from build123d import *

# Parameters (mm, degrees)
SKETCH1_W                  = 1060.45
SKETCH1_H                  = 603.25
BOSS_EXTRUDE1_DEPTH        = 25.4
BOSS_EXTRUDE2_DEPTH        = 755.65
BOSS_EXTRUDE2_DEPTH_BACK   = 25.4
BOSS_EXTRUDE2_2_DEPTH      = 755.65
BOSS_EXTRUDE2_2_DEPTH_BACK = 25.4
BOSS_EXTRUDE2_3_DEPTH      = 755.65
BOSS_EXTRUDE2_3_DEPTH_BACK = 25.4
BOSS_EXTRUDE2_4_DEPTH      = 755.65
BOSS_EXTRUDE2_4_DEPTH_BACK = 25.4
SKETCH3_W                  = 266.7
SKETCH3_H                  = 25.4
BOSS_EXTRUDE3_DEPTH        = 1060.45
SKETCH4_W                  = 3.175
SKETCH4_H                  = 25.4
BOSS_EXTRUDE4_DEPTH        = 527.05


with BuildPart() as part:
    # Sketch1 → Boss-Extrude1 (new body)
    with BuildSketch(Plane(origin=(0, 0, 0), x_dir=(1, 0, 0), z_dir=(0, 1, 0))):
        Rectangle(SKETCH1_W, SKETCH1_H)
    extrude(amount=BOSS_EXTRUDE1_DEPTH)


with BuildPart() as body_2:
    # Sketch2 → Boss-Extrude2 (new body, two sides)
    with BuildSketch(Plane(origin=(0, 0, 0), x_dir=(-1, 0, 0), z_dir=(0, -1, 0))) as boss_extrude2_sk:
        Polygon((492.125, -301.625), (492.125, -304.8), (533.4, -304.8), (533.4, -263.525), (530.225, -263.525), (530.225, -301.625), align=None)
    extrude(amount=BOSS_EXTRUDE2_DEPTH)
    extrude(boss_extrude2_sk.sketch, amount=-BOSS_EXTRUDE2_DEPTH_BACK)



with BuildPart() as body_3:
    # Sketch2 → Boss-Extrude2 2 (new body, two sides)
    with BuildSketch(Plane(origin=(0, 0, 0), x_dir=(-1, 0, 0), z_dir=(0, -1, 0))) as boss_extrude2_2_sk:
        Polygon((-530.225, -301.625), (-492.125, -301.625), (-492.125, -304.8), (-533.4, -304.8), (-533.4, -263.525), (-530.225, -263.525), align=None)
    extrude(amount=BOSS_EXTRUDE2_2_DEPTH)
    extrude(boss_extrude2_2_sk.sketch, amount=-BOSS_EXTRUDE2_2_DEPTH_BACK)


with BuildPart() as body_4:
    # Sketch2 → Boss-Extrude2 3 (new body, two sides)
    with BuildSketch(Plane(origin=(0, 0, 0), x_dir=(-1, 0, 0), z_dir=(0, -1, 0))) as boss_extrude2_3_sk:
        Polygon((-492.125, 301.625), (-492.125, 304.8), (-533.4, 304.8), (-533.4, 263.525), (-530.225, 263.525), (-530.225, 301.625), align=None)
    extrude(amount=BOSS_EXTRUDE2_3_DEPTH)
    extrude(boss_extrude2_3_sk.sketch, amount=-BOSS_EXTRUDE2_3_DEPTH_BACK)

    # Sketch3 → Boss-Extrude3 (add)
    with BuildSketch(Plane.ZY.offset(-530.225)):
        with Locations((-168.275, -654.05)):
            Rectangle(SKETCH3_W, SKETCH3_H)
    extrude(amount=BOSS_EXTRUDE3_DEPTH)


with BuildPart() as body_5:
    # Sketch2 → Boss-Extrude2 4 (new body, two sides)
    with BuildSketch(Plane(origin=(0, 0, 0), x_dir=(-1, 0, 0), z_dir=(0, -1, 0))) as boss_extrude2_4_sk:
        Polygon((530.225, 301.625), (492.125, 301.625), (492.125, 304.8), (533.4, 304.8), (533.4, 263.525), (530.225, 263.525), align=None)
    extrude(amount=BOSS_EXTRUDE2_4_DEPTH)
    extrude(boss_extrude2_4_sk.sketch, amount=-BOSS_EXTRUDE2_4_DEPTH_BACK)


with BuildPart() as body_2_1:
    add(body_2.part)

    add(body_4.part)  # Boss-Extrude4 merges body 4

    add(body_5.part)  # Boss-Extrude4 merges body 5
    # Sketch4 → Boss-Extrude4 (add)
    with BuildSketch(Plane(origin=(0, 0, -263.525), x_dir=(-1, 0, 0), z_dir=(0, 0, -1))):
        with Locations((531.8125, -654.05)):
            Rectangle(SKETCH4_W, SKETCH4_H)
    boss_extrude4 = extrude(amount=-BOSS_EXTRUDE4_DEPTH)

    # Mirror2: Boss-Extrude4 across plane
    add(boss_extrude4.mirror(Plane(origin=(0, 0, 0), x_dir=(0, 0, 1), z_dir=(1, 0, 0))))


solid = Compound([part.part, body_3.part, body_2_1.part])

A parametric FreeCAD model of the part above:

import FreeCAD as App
import Part
import Sketcher
Q = App.Units.Quantity

doc = App.newDocument("Part")
params = doc.addObject("Spreadsheet::Sheet", "Params")
for row, (alias, value) in enumerate([
    ("sketch1_width", "41.75 in"),
    ("sketch1_height", "23.75 in"),
    ("pad1_length", "1 in"),
    ("sketch2_width", "1.5 in"),
    ("sketch2_width2", "1.625 in"),
    ("pad2_length", "29.75 in"),
    ("pad2_length2", "1 in"),
    ("sketch3_width", "1.5 in"),
    ("sketch3_width2", "0.125 in"),
    ("pad3_length", "29.75 in"),
    ("pad3_length2", "1 in"),
    ("sketch4_width", "1.5 in"),
    ("sketch4_width2", "1.625 in"),
    ("pad4_length", "29.75 in"),
    ("pad4_length2", "1 in"),
    ("sketch5_width", "1 in"),
    ("sketch5_height", "10.5 in"),
    ("pad5_length", "41.75 in"),
    ("sketch6_width", "1.5 in"),
    ("sketch6_width2", "0.125 in"),
    ("pad6_length", "29.75 in"),
    ("pad6_length2", "1 in"),
    ("sketch7_height", "1 in"),
    ("sketch7_width", "0.125 in"),
    ("pad7_length", "20.75 in"),
], start=1):
    params.set(f"A{row}", alias)
    params.set(f"B{row}", "=" + value)
    params.setAlias(f"B{row}", alias)

body = doc.addObject("PartDesign::Body", "Body")

sketch1 = body.newObject("Sketcher::SketchObject", "Sketch")
sketch1.AttachmentSupport = (doc.getObject("XZ_Plane"), [""])
sketch1.MapMode = "FlatFace"
sketch1.addGeometry([
    Part.LineSegment(App.Vector(-530.225, -301.625, 0), App.Vector(-530.225, 301.625, 0)),
    Part.LineSegment(App.Vector(-530.225, 301.625, 0), App.Vector(530.225, 301.625, 0)),
    Part.LineSegment(App.Vector(530.225, 301.625, 0), App.Vector(530.225, -301.625, 0)),
    Part.LineSegment(App.Vector(530.225, -301.625, 0), App.Vector(-530.225, -301.625, 0)),
], False)
sketch1.addConstraint([
    Sketcher.Constraint("Coincident", 0, 2, 1, 1),
    Sketcher.Constraint("Coincident", 1, 2, 2, 1),
    Sketcher.Constraint("Coincident", 2, 2, 3, 1),
    Sketcher.Constraint("Coincident", 3, 2, 0, 1),
    Sketcher.Constraint("Vertical", 0),
    Sketcher.Constraint("Horizontal", 1),
    Sketcher.Constraint("Vertical", 2),
    Sketcher.Constraint("Horizontal", 3),
    Sketcher.Constraint("Symmetric", 0, 2, 2, 2, -1, 1),
    Sketcher.Constraint("DistanceX", 1, 1, 1, 2, Q("41.75 in")),
    Sketcher.Constraint("DistanceY", 0, 1, 0, 2, Q("23.75 in")),
])
sketch1.setExpression("Constraints[9]", "Params.sketch1_width")
sketch1.setExpression("Constraints[10]", "Params.sketch1_height")
pad1 = body.newObject("PartDesign::Pad", "Pad")
pad1.Profile = sketch1
pad1.setExpression("Length", "Params.pad1_length")
pad1.Reversed = True
body2 = doc.addObject("PartDesign::Body", "Body001")

sketch2 = body2.newObject("Sketcher::SketchObject", "Sketch001")
sketch2.AttachmentSupport = (doc.getObject("XZ_Plane001"), [""])
sketch2.MapMode = "FlatFace"
sketch2.addGeometry([
    Part.LineSegment(App.Vector(-492.125, 301.625, 0), App.Vector(-492.125, 304.8, 0)),
    Part.LineSegment(App.Vector(-492.125, 304.8, 0), App.Vector(-533.4, 304.8, 0)),
    Part.LineSegment(App.Vector(-533.4, 304.8, 0), App.Vector(-533.4, 263.525, 0)),
    Part.LineSegment(App.Vector(-533.4, 263.525, 0), App.Vector(-530.225, 263.525, 0)),
    Part.LineSegment(App.Vector(-530.225, 263.525, 0), App.Vector(-530.225, 301.625, 0)),
    Part.LineSegment(App.Vector(-530.225, 301.625, 0), App.Vector(-492.125, 301.625, 0)),
], False)
sketch2.addConstraint([
    Sketcher.Constraint("Coincident", 0, 2, 1, 1),
    Sketcher.Constraint("Coincident", 1, 2, 2, 1),
    Sketcher.Constraint("Coincident", 2, 2, 3, 1),
    Sketcher.Constraint("Coincident", 3, 2, 4, 1),
    Sketcher.Constraint("Coincident", 4, 2, 5, 1),
    Sketcher.Constraint("Coincident", 5, 2, 0, 1),
    Sketcher.Constraint("Vertical", 0),
    Sketcher.Constraint("Horizontal", 1),
    Sketcher.Constraint("Vertical", 2),
    Sketcher.Constraint("Horizontal", 3),
    Sketcher.Constraint("Vertical", 4),
    Sketcher.Constraint("Horizontal", 5),
    Sketcher.Constraint("Equal", 3, 0),
    Sketcher.Constraint("Equal", 1, 2),
    Sketcher.Constraint("DistanceX", 5, 1, 5, 2, Q("1.5 in")),
    Sketcher.Constraint("DistanceY", -1, 1, 0, 2, Q("12 in")),
    Sketcher.Constraint("DistanceX", 1, 2, -1, 1, Q("21 in")),
    Sketcher.Constraint("DistanceX", 1, 2, 1, 1, Q("1.625 in")),
])
sketch2.setExpression("Constraints[14]", "Params.sketch2_width")
sketch2.setExpression("Constraints[17]", "Params.sketch2_width2")
pad2 = body2.newObject("PartDesign::Pad", "Pad001")
pad2.Profile = sketch2
pad2.Type = "TwoLengths"
pad2.setExpression("Length", "Params.pad2_length")
pad2.setExpression("Length2", "Params.pad2_length2")
body3 = doc.addObject("PartDesign::Body", "Body002")

sketch3 = body3.newObject("Sketcher::SketchObject", "Sketch002")
sketch3.AttachmentSupport = (doc.getObject("XZ_Plane002"), [""])
sketch3.MapMode = "FlatFace"
sketch3.addGeometry([
    Part.LineSegment(App.Vector(492.125, 301.625, 0), App.Vector(530.225, 301.625, 0)),
    Part.LineSegment(App.Vector(530.225, 301.625, 0), App.Vector(530.225, 263.525, 0)),
    Part.LineSegment(App.Vector(530.225, 263.525, 0), App.Vector(533.4, 263.525, 0)),
    Part.LineSegment(App.Vector(533.4, 263.525, 0), App.Vector(533.4, 304.8, 0)),
    Part.LineSegment(App.Vector(533.4, 304.8, 0), App.Vector(492.125, 304.8, 0)),
    Part.LineSegment(App.Vector(492.125, 304.8, 0), App.Vector(492.125, 301.625, 0)),
], False)
sketch3.addConstraint([
    Sketcher.Constraint("Coincident", 0, 2, 1, 1),
    Sketcher.Constraint("Coincident", 1, 2, 2, 1),
    Sketcher.Constraint("Coincident", 2, 2, 3, 1),
    Sketcher.Constraint("Coincident", 3, 2, 4, 1),
    Sketcher.Constraint("Coincident", 4, 2, 5, 1),
    Sketcher.Constraint("Coincident", 5, 2, 0, 1),
    Sketcher.Constraint("Horizontal", 0),
    Sketcher.Constraint("Vertical", 1),
    Sketcher.Constraint("Horizontal", 2),
    Sketcher.Constraint("Vertical", 3),
    Sketcher.Constraint("Horizontal", 4),
    Sketcher.Constraint("Vertical", 5),
    Sketcher.Constraint("Equal", 0, 1),
    Sketcher.Constraint("Equal", 4, 3),
    Sketcher.Constraint("DistanceX", 0, 1, 0, 2, Q("1.5 in")),
    Sketcher.Constraint("DistanceX", -1, 1, 2, 2, Q("21 in")),
    Sketcher.Constraint("DistanceY", -1, 1, 3, 2, Q("12 in")),
    Sketcher.Constraint("DistanceX", 2, 1, 2, 2, Q("0.125 in")),
])
sketch3.setExpression("Constraints[14]", "Params.sketch3_width")
sketch3.setExpression("Constraints[17]", "Params.sketch3_width2")
pad3 = body3.newObject("PartDesign::Pad", "Pad002")
pad3.Profile = sketch3
pad3.Type = "TwoLengths"
pad3.setExpression("Length", "Params.pad3_length")
pad3.setExpression("Length2", "Params.pad3_length2")
body4 = doc.addObject("PartDesign::Body", "Body003")

sketch4 = body4.newObject("Sketcher::SketchObject", "Sketch003")
sketch4.AttachmentSupport = (doc.getObject("XZ_Plane003"), [""])
sketch4.MapMode = "FlatFace"
sketch4.addGeometry([
    Part.LineSegment(App.Vector(492.125, -301.625, 0), App.Vector(492.125, -304.8, 0)),
    Part.LineSegment(App.Vector(492.125, -304.8, 0), App.Vector(533.4, -304.8, 0)),
    Part.LineSegment(App.Vector(533.4, -304.8, 0), App.Vector(533.4, -263.525, 0)),
    Part.LineSegment(App.Vector(533.4, -263.525, 0), App.Vector(530.225, -263.525, 0)),
    Part.LineSegment(App.Vector(530.225, -263.525, 0), App.Vector(530.225, -301.625, 0)),
    Part.LineSegment(App.Vector(530.225, -301.625, 0), App.Vector(492.125, -301.625, 0)),
], False)
sketch4.addConstraint([
    Sketcher.Constraint("Coincident", 0, 2, 1, 1),
    Sketcher.Constraint("Coincident", 1, 2, 2, 1),
    Sketcher.Constraint("Coincident", 2, 2, 3, 1),
    Sketcher.Constraint("Coincident", 3, 2, 4, 1),
    Sketcher.Constraint("Coincident", 4, 2, 5, 1),
    Sketcher.Constraint("Coincident", 5, 2, 0, 1),
    Sketcher.Constraint("Vertical", 0),
    Sketcher.Constraint("Horizontal", 1),
    Sketcher.Constraint("Vertical", 2),
    Sketcher.Constraint("Horizontal", 3),
    Sketcher.Constraint("Vertical", 4),
    Sketcher.Constraint("Horizontal", 5),
    Sketcher.Constraint("Equal", 3, 0),
    Sketcher.Constraint("Equal", 1, 2),
    Sketcher.Constraint("DistanceX", 5, 2, 5, 1, Q("1.5 in")),
    Sketcher.Constraint("DistanceY", 0, 2, -1, 1, Q("12 in")),
    Sketcher.Constraint("DistanceX", -1, 1, 1, 2, Q("21 in")),
    Sketcher.Constraint("DistanceX", 1, 1, 1, 2, Q("1.625 in")),
])
sketch4.setExpression("Constraints[14]", "Params.sketch4_width")
sketch4.setExpression("Constraints[17]", "Params.sketch4_width2")
pad4 = body4.newObject("PartDesign::Pad", "Pad003")
pad4.Profile = sketch4
pad4.Type = "TwoLengths"
pad4.setExpression("Length", "Params.pad4_length")
pad4.setExpression("Length2", "Params.pad4_length2")

sketch5 = body4.newObject("Sketcher::SketchObject", "Sketch004")
sketch5.AttachmentSupport = (doc.getObject("YZ_Plane003"), [""])
sketch5.MapMode = "FlatFace"
sketch5.AttachmentOffset = App.Placement(App.Vector(0, 0, 20.875 * 25.4), App.Rotation())
sketch5.addGeometry([
    Part.LineSegment(App.Vector(-641.35, -301.625, 0), App.Vector(-666.75, -301.625, 0)),
    Part.LineSegment(App.Vector(-666.75, -301.625, 0), App.Vector(-666.75, -34.925, 0)),
    Part.LineSegment(App.Vector(-666.75, -34.925, 0), App.Vector(-641.35, -34.925, 0)),
    Part.LineSegment(App.Vector(-641.35, -34.925, 0), App.Vector(-641.35, -301.625, 0)),
], False)
sketch5.addConstraint([
    Sketcher.Constraint("Coincident", 0, 2, 1, 1),
    Sketcher.Constraint("Coincident", 1, 2, 2, 1),
    Sketcher.Constraint("Coincident", 2, 2, 3, 1),
    Sketcher.Constraint("Coincident", 3, 2, 0, 1),
    Sketcher.Constraint("Horizontal", 0),
    Sketcher.Constraint("Vertical", 1),
    Sketcher.Constraint("Horizontal", 2),
    Sketcher.Constraint("Vertical", 3),
    Sketcher.Constraint("DistanceX", 0, 2, 0, 1, Q("1 in")),
    Sketcher.Constraint("DistanceY", 1, 1, 1, 2, Q("10.5 in")),
    Sketcher.Constraint("DistanceX", 0, 2, -1, 1, Q("26.25 in")),
    Sketcher.Constraint("DistanceY", 0, 2, -1, 1, Q("11.875 in")),
])
sketch5.setExpression("Constraints[8]", "Params.sketch5_width")
sketch5.setExpression("Constraints[9]", "Params.sketch5_height")
pad5 = body4.newObject("PartDesign::Pad", "Pad004")
pad5.Profile = sketch5
pad5.setExpression("Length", "Params.pad5_length")
pad5.Reversed = True
body5 = doc.addObject("PartDesign::Body", "Body004")

sketch6 = body5.newObject("Sketcher::SketchObject", "Sketch005")
sketch6.AttachmentSupport = (doc.getObject("XZ_Plane004"), [""])
sketch6.MapMode = "FlatFace"
sketch6.addGeometry([
    Part.LineSegment(App.Vector(-492.125, -301.625, 0), App.Vector(-530.225, -301.625, 0)),
    Part.LineSegment(App.Vector(-530.225, -301.625, 0), App.Vector(-530.225, -263.525, 0)),
    Part.LineSegment(App.Vector(-530.225, -263.525, 0), App.Vector(-533.4, -263.525, 0)),
    Part.LineSegment(App.Vector(-533.4, -263.525, 0), App.Vector(-533.4, -304.8, 0)),
    Part.LineSegment(App.Vector(-533.4, -304.8, 0), App.Vector(-492.125, -304.8, 0)),
    Part.LineSegment(App.Vector(-492.125, -304.8, 0), App.Vector(-492.125, -301.625, 0)),
], False)
sketch6.addConstraint([
    Sketcher.Constraint("Coincident", 0, 2, 1, 1),
    Sketcher.Constraint("Coincident", 1, 2, 2, 1),
    Sketcher.Constraint("Coincident", 2, 2, 3, 1),
    Sketcher.Constraint("Coincident", 3, 2, 4, 1),
    Sketcher.Constraint("Coincident", 4, 2, 5, 1),
    Sketcher.Constraint("Coincident", 5, 2, 0, 1),
    Sketcher.Constraint("Horizontal", 0),
    Sketcher.Constraint("Vertical", 1),
    Sketcher.Constraint("Horizontal", 2),
    Sketcher.Constraint("Vertical", 3),
    Sketcher.Constraint("Horizontal", 4),
    Sketcher.Constraint("Vertical", 5),
    Sketcher.Constraint("Equal", 0, 1),
    Sketcher.Constraint("Equal", 4, 3),
    Sketcher.Constraint("DistanceX", 0, 2, 0, 1, Q("1.5 in")),
    Sketcher.Constraint("DistanceX", 2, 2, -1, 1, Q("21 in")),
    Sketcher.Constraint("DistanceY", 3, 2, -1, 1, Q("12 in")),
    Sketcher.Constraint("DistanceX", 2, 2, 2, 1, Q("0.125 in")),
])
sketch6.setExpression("Constraints[14]", "Params.sketch6_width")
sketch6.setExpression("Constraints[17]", "Params.sketch6_width2")
pad6 = body5.newObject("PartDesign::Pad", "Pad005")
pad6.Profile = sketch6
pad6.Type = "TwoLengths"
pad6.setExpression("Length", "Params.pad6_length")
pad6.setExpression("Length2", "Params.pad6_length2")
body2.AllowCompound = True
doc.recompute()

boolean = body2.newObject("PartDesign::Boolean", "Boolean")
boolean.Type = "Fuse"
boolean.addObjects([body4])
doc.recompute()

boolean2 = body2.newObject("PartDesign::Boolean", "Boolean001")
boolean2.Type = "Fuse"
boolean2.addObjects([body5])

sketch7 = body2.newObject("Sketcher::SketchObject", "Sketch006")
sketch7.AttachmentSupport = (doc.getObject("XY_Plane001"), [""])
sketch7.MapMode = "FlatFace"
sketch7.AttachmentOffset = App.Placement(App.Vector(0, 0, -10.375 * 25.4), App.Rotation())
sketch7.addGeometry([
    Part.LineSegment(App.Vector(-530.225, -641.35, 0), App.Vector(-530.225, -666.75, 0)),
    Part.LineSegment(App.Vector(-530.225, -666.75, 0), App.Vector(-533.4, -666.75, 0)),
    Part.LineSegment(App.Vector(-533.4, -666.75, 0), App.Vector(-533.4, -641.35, 0)),
    Part.LineSegment(App.Vector(-533.4, -641.35, 0), App.Vector(-530.225, -641.35, 0)),
], False)
sketch7.addConstraint([
    Sketcher.Constraint("Coincident", 0, 2, 1, 1),
    Sketcher.Constraint("Coincident", 1, 2, 2, 1),
    Sketcher.Constraint("Coincident", 2, 2, 3, 1),
    Sketcher.Constraint("Coincident", 3, 2, 0, 1),
    Sketcher.Constraint("Vertical", 0),
    Sketcher.Constraint("Horizontal", 1),
    Sketcher.Constraint("Vertical", 2),
    Sketcher.Constraint("Horizontal", 3),
    Sketcher.Constraint("DistanceY", 0, 2, 0, 1, Q("1 in")),
    Sketcher.Constraint("DistanceX", 1, 2, -1, 1, Q("21 in")),
    Sketcher.Constraint("DistanceX", 1, 2, 1, 1, Q("0.125 in")),
    Sketcher.Constraint("DistanceY", 0, 2, -1, 1, Q("26.25 in")),
])
sketch7.setExpression("Constraints[8]", "Params.sketch7_height")
sketch7.setExpression("Constraints[10]", "Params.sketch7_width")
pad7 = body2.newObject("PartDesign::Pad", "Pad006")
pad7.Profile = sketch7
pad7.setExpression("Length", "Params.pad7_length")
doc.recompute()

mirrored = body2.newObject("PartDesign::Mirrored", "Mirrored")
mirrored.Originals = [pad7]
mirrored.MirrorPlane = (doc.getObject("YZ_Plane001"), [""])
body2.Tip = mirrored

doc.recompute()
